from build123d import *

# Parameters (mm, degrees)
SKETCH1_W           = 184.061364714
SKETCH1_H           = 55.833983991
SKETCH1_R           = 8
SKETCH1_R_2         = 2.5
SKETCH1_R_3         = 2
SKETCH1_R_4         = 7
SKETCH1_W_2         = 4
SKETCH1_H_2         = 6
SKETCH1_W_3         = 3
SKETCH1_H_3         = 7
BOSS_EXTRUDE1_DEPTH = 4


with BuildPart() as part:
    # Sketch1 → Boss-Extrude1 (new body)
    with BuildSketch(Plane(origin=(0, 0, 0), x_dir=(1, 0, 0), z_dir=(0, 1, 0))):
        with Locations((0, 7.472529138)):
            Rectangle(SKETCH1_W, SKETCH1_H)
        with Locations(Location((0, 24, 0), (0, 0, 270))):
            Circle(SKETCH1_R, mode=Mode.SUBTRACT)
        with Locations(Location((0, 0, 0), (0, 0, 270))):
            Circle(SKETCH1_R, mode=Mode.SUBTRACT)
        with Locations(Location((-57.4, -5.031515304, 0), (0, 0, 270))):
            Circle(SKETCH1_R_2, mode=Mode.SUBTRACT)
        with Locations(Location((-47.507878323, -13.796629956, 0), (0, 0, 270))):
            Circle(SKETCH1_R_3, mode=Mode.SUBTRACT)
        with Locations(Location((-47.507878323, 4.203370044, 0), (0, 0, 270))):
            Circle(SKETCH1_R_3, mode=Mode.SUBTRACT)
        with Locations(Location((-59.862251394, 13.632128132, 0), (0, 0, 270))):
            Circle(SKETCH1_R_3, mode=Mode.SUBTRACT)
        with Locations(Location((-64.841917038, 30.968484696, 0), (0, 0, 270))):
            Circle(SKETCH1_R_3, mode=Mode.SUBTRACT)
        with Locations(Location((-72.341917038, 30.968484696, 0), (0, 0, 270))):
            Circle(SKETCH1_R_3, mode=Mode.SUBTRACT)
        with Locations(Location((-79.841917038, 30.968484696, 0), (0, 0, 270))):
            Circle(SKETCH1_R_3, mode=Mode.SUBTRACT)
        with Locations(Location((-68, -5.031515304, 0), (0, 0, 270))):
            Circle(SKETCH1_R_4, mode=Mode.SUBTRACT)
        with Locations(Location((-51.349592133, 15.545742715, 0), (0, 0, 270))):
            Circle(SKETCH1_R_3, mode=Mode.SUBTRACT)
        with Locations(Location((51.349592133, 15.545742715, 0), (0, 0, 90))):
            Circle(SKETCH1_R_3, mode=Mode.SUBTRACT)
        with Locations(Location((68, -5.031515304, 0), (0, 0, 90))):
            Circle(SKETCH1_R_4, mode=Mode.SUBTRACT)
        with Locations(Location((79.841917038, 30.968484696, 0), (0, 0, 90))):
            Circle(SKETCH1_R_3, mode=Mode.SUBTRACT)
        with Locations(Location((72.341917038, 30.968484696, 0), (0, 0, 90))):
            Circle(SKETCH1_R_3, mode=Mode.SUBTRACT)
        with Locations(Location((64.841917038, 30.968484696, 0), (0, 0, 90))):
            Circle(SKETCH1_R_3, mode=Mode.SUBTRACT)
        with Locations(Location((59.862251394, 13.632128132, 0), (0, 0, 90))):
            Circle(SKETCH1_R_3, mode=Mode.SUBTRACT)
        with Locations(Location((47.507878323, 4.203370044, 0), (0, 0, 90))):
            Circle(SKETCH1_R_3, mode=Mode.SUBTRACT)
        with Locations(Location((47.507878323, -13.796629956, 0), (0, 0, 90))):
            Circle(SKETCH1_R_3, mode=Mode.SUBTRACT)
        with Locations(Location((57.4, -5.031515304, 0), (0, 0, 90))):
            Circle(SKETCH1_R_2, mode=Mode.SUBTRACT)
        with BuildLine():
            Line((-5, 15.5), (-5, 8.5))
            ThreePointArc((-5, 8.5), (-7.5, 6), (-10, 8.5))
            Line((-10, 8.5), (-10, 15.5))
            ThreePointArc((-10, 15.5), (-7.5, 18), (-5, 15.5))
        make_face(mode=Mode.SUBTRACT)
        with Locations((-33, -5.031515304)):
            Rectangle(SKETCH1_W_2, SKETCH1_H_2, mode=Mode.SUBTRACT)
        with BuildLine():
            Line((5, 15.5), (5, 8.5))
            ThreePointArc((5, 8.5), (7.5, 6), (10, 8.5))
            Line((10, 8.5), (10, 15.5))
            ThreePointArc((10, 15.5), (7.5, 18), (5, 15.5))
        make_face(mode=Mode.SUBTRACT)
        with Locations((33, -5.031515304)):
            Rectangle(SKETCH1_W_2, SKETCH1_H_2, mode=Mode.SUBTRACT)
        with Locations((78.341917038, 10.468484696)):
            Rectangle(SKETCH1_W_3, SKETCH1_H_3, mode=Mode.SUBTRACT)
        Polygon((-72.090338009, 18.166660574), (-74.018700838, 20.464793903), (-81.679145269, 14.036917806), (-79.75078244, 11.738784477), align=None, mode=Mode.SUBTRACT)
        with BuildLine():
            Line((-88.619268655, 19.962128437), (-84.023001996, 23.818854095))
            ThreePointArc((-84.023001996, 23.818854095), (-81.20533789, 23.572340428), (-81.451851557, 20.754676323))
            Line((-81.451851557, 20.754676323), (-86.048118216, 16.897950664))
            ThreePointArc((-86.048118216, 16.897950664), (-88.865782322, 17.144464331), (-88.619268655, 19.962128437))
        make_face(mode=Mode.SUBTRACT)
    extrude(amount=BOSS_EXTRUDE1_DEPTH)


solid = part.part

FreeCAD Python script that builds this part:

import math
import FreeCAD as App
import Part
import Sketcher

V = App.Vector
Q = App.Units.Quantity


def add_polygon(sketch, points):
    """Adds a closed chain of lines whose ends are joined by coincident constraints."""
    first, n = sketch.GeometryCount, len(points)
    for a, b in zip(points, points[1:] + points[:1]):
        sketch.addGeometry(Part.LineSegment(App.Vector(*a, 0), App.Vector(*b, 0)), False)
    for i in range(n):
        sketch.addConstraint(Sketcher.Constraint("Coincident", first + i, 2, first + (i + 1) % n, 1))

doc = App.newDocument("Part")
body = doc.addObject("PartDesign::Body", "Body")

sketch1 = body.newObject("Sketcher::SketchObject", "Sketch")
sketch1.AttachmentSupport = (doc.getObject("XZ_Plane"), [""])
sketch1.MapMode = "FlatFace"
add_polygon(sketch1, [(-92.030682, -35.389521), (-92.030682, 20.444463), (92.030682, 20.444463), (92.030682, -35.389521)])
sketch1.addGeometry(Part.Circle(V(-47.507878, 13.79663, 0), V(0, 0, 1), 2), False)
sketch1.addGeometry(Part.Circle(V(-68, 5.031515, 0), V(0, 0, 1), 7), False)
sketch1.addGeometry(Part.Circle(V(-57.4, 5.031515, 0), V(0, 0, 1), 2.5), False)
add_polygon(sketch1, [(-31, 8.031515), (-35, 8.031515), (-35, 2.031515), (-31, 2.031515)])
sketch1.addGeometry(Part.Circle(V(-47.507878, -4.20337, 0), V(0, 0, 1), 2), False)
add_polygon(sketch1, [(35, 8.031515), (31, 8.031515), (31, 2.031515), (35, 2.031515)])
sketch1.addGeometry(Part.Circle(V(47.507878, 13.79663, 0), V(0, 0, 1), 2), False)
sketch1.addGeometry(Part.Circle(V(57.4, 5.031515, 0), V(0, 0, 1), 2.5), False)
sketch1.addGeometry(Part.Circle(V(68, 5.031515, 0), V(0, 0, 1), 7), False)
sketch1.addGeometry(Part.Circle(V(0, 0, 0), V(0, 0, 1), 8), False)
sketch1.addGeometry(Part.Circle(V(47.507878, -4.20337, 0), V(0, 0, 1), 2), False)
sketch1.addGeometry(Part.Circle(V(-59.862251, -13.632128, 0), V(0, 0, 1), 2), False)
add_polygon(sketch1, [(-74.018701, -20.464794), (-72.090338, -18.166661), (-79.750782, -11.738784), (-81.679145, -14.036918)])
sketch1.addGeometry(Part.ArcOfCircle(Part.Circle(V(-87.333693, -18.43004, 0), V(0, 0, 1), 2), math.radians(50), math.radians(230)), False)
sketch1.addGeometry(Part.LineSegment(V(-88.619269, -19.962128, 0), V(-84.023002, -23.818854, 0)), False)
sketch1.addGeometry(Part.ArcOfCircle(Part.Circle(V(-82.737427, -22.286765, 0), V(0, 0, 1), 2), math.radians(-130), math.radians(50)), False)
sketch1.addGeometry(Part.LineSegment(V(-81.451852, -20.754676, 0), V(-86.048118, -16.897951, 0)), False)
sketch1.addGeometry(Part.Circle(V(-51.349592, -15.545743, 0), V(0, 0, 1), 2), False)
sketch1.addGeometry(Part.ArcOfCircle(Part.Circle(V(-7.5, -15.5, 0), V(0, 0, 1), 2.5), math.radians(180), math.radians(360)), False)
sketch1.addGeometry(Part.LineSegment(V(-5, -15.5, 0), V(-5, -8.5, 0)), False)
sketch1.addGeometry(Part.ArcOfCircle(Part.Circle(V(-7.5, -8.5, 0), V(0, 0, 1), 2.5), math.radians(0), math.radians(180)), False)
sketch1.addGeometry(Part.LineSegment(V(-10, -8.5, 0), V(-10, -15.5, 0)), False)
sketch1.addGeometry(Part.Circle(V(-79.841917, -30.968485, 0), V(0, 0, 1), 2), False)
sketch1.addGeometry(Part.Circle(V(-72.341917, -30.968485, 0), V(0, 0, 1), 2), False)
sketch1.addGeometry(Part.Circle(V(-64.841917, -30.968485, 0), V(0, 0, 1), 2), False)
sketch1.addGeometry(Part.LineSegment(V(5, -8.5, 0), V(5, -15.5, 0)), False)
sketch1.addGeometry(Part.ArcOfCircle(Part.Circle(V(7.5, -15.5, 0), V(0, 0, 1), 2.5), math.radians(180), math.radians(360)), False)
sketch1.addGeometry(Part.LineSegment(V(10, -15.5, 0), V(10, -8.5, 0)), False)
sketch1.addGeometry(Part.ArcOfCircle(Part.Circle(V(7.5, -8.5, 0), V(0, 0, 1), 2.5), math.radians(0), math.radians(180)), False)
sketch1.addGeometry(Part.Circle(V(59.862251, -13.632128, 0), V(0, 0, 1), 2), False)
add_polygon(sketch1, [(79.841917, -6.968485), (76.841917, -6.968485), (76.841917, -13.968485), (79.841917, -13.968485)])
sketch1.addGeometry(Part.Circle(V(51.349592, -15.545743, 0), V(0, 0, 1), 2), False)
sketch1.addGeometry(Part.Circle(V(0, -24, 0), V(0, 0, 1), 8), False)
sketch1.addGeometry(Part.Circle(V(64.841917, -30.968485, 0), V(0, 0, 1), 2), False)
sketch1.addGeometry(Part.Circle(V(72.341917, -30.968485, 0), V(0, 0, 1), 2), False)
sketch1.addGeometry(Part.Circle(V(79.841917, -30.968485, 0), V(0, 0, 1), 2), False)
sketch1.addConstraint([
    Sketcher.Constraint("Tangent", 26, 2, 27, 1),
    Sketcher.Constraint("Tangent", 27, 2, 28, 1),
    Sketcher.Constraint("Tangent", 28, 2, 29, 1),
    Sketcher.Constraint("Tangent", 29, 2, 26, 1),
    Sketcher.Constraint("Tangent", 31, 2, 32, 1),
    Sketcher.Constraint("Tangent", 32, 2, 33, 1),
    Sketcher.Constraint("Tangent", 33, 2, 34, 1),
    Sketcher.Constraint("Tangent", 34, 2, 31, 1),
    Sketcher.Constraint("Tangent", 38, 2, 39, 1),
    Sketcher.Constraint("Tangent", 39, 2, 40, 1),
    Sketcher.Constraint("Tangent", 40, 2, 41, 1),
    Sketcher.Constraint("Tangent", 41, 2, 38, 1),
    Sketcher.Constraint("Vertical", 0),
    Sketcher.Constraint("Horizontal", 1),
    Sketcher.Constraint("Vertical", 2),
    Sketcher.Constraint("Horizontal", 3),
    Sketcher.Constraint("Horizontal", 7),
    Sketcher.Constraint("Vertical", 8),
    Sketcher.Constraint("Horizontal", 9),
    Sketcher.Constraint("Vertical", 10),
    Sketcher.Constraint("Horizontal", 12),
    Sketcher.Constraint("Vertical", 13),
    Sketcher.Constraint("Horizontal", 14),
    Sketcher.Constraint("Vertical", 15),
    Sketcher.Constraint("Vertical", 32),
    Sketcher.Constraint("Vertical", 34),
    Sketcher.Constraint("Vertical", 38),
    Sketcher.Constraint("Vertical", 40),
    Sketcher.Constraint("Horizontal", 43),
    Sketcher.Constraint("Vertical", 44),
    Sketcher.Constraint("Horizontal", 45),
    Sketcher.Constraint("Vertical", 46),
    Sketcher.Constraint("Coincident", 19, 3, -1, 1),
    Sketcher.Constraint("Equal", 4, 11),
    Sketcher.Constraint("Equal", 11, 16),
    Sketcher.Constraint("Equal", 6, 17),
    Sketcher.Constraint("Equal", 5, 18),
    Sketcher.Constraint("Equal", 16, 20),
    Sketcher.Constraint("Equal", 20, 21),
    Sketcher.Constraint("Equal", 21, 26),
    Sketcher.Constraint("Equal", 26, 28),
    Sketcher.Constraint("Equal", 28, 30),
    Sketcher.Constraint("Equal", 17, 31),
    Sketcher.Constraint("Equal", 30, 35),
    Sketcher.Constraint("Equal", 35, 36),
    Sketcher.Constraint("Equal", 36, 37),
    Sketcher.Constraint("Equal", 33, 39),
    Sketcher.Constraint("Equal", 37, 42),
    Sketcher.Constraint("Equal", 42, 47),
    Sketcher.Constraint("Equal", 19, 48),
    Sketcher.Constraint("Equal", 47, 49),
    Sketcher.Constraint("Equal", 49, 50),
    Sketcher.Constraint("Equal", 50, 51),
    Sketcher.Constraint("Symmetric", 4, 3, 16, 3, -2),
    Sketcher.Constraint("Symmetric", 6, 3, 17, 3, -2),
    Sketcher.Constraint("Symmetric", 5, 3, 18, 3, -2),
    Sketcher.Constraint("Symmetric", 11, 3, 20, 3, -2),
    Sketcher.Constraint("Symmetric", 31, 3, 39, 3, -2),
    Sketcher.Constraint("Symmetric", 21, 3, 42, 3, -2),
    Sketcher.Constraint("Symmetric", 30, 3, 47, 3, -2),
    Sketcher.Constraint("Symmetric", 37, 3, 49, 3, -2),
    Sketcher.Constraint("Symmetric", 36, 3, 50, 3, -2),
    Sketcher.Constraint("Symmetric", 35, 3, 51, 3, -2),
    Sketcher.Constraint("Symmetric", 10, 2, 12, 2, -2),
    Sketcher.Constraint("Symmetric", 8, 2, 14, 2, -2),
    Sketcher.Constraint("PointOnObject", 48, 3, -2),
    Sketcher.Constraint("Perpendicular", 22, 23),
    Sketcher.Constraint("Perpendicular", 23, 24),
    Sketcher.Constraint("Perpendicular", 24, 25),
    Sketcher.Constraint("Parallel", 25, 27),
    Sketcher.Constraint("Horizontal", 5, 3, 6, 3),
    Sketcher.Constraint("Horizontal", 35, 3, 36, 3),
    Sketcher.Constraint("Horizontal", 36, 3, 37, 3),
    Sketcher.Constraint("Horizontal", 33, 3, 41, 3),
    Sketcher.Constraint("Vertical", 4, 3, 11, 3),
    Sketcher.Constraint("Vertical", 51, 3, 45, 2),
    Sketcher.Constraint("Equal", 40, 44),
    Sketcher.Constraint("Diameter", 4, Q("4 mm")),
    Sketcher.Constraint("Diameter", 5, Q("14 mm")),
    Sketcher.Constraint("Diameter", 6, Q("5 mm")),
    Sketcher.Constraint("Diameter", 19, Q("16 mm")),
    Sketcher.Constraint("DistanceX", 7, 2, 7, 1, Q("4 mm")),
    Sketcher.Constraint("DistanceX", 43, 2, 43, 1, Q("3 mm")),
    Sketcher.Constraint("DistanceY", 8, 2, 8, 1, Q("6 mm")),
    Sketcher.Constraint("DistanceY", 32, 1, 32, 2, Q("7 mm")),
    Sketcher.Constraint("Angle", 22, Q("50 deg")),
    Sketcher.Constraint("Distance", 22, Q("3 mm")),
    Sketcher.Constraint("Distance", 23, Q("10 mm")),
    Sketcher.Constraint("Distance", 27, Q("6 mm")),
    Sketcher.Constraint("DistanceX", 5, 3, -1, 1, Q("68 mm")),
    Sketcher.Constraint("DistanceY", 48, 3, -1, 1, Q("24 mm")),
    Sketcher.Constraint("DistanceX", 7, 2, -1, 1, Q("35 mm")),
    Sketcher.Constraint("DistanceX", 31, 2, -1, 1, Q("5 mm")),
    Sketcher.Constraint("DistanceY", 11, 3, 4, 3, Q("18 mm")),
    Sketcher.Constraint("DistanceY", 35, 3, 5, 3, Q("36 mm")),
    Sketcher.Constraint("DistanceX", 35, 3, 37, 3, Q("15 mm")),
    Sketcher.Constraint("DistanceY", 6, 3, 7, 2, Q("3 mm")),
    Sketcher.Constraint("DistanceY", 43, 2, 18, 3, Q("12 mm")),
    Sketcher.Constraint("DistanceX", 6, 3, -1, 1, Q("57.4 mm")),
    Sketcher.Constraint("DistanceY", 31, 3, -1, 1, Q("15.5 mm")),
    Sketcher.Constraint("DistanceX", 35, 3, 36, 3, Q("7.5 mm")),
    Sketcher.Constraint("DistanceX", 27, 2, -1, 1, Q("84.023002 mm")),
    Sketcher.Constraint("DistanceX", 25, 2, -1, 1, Q("74.018701 mm")),
    Sketcher.Constraint("DistanceY", 35, 3, 23, 2, Q("19.2297 mm")),
    Sketcher.Constraint("DistanceX", 1, 1, 1, 2, Q("184.061365 mm")),
    Sketcher.Constraint("DistanceY", 0, 1, 0, 2, Q("55.833984 mm")),
    Sketcher.Constraint("DistanceX", 4, 3, -1, 1, Q("47.507878 mm")),
    Sketcher.Constraint("DistanceY", -1, 1, 4, 3, Q("13.79663 mm")),
    Sketcher.Constraint("DistanceX", 21, 3, -1, 1, Q("59.862251 mm")),
    Sketcher.Constraint("DistanceY", 21, 3, -1, 1, Q("13.632128 mm")),
    Sketcher.Constraint("DistanceY", 26, 3, -1, 1, Q("18.43004 mm")),
    Sketcher.Constraint("DistanceY", 2, 2, -1, 1, Q("35.389521 mm")),
    Sketcher.Constraint("DistanceY", 22, 2, -1, 1, Q("18.166661 mm")),
    Sketcher.Constraint("DistanceX", 21, 3, 30, 3, Q("8.512659 mm")),
    Sketcher.Constraint("DistanceY", 30, 3, 6, 3, Q("20.577258 mm")),
    Sketcher.Constraint("DistanceX", 28, 3, 35, 3, Q("2.89551 mm")),
    Sketcher.Constraint("DistanceX", 0, 2, 26, 3, Q("4.696989 mm")),
])
pad1 = body.newObject("PartDesign::Pad", "Pad")
pad1.Profile = sketch1
pad1.Length = 4
pad1.Reversed = True

doc.recompute()
